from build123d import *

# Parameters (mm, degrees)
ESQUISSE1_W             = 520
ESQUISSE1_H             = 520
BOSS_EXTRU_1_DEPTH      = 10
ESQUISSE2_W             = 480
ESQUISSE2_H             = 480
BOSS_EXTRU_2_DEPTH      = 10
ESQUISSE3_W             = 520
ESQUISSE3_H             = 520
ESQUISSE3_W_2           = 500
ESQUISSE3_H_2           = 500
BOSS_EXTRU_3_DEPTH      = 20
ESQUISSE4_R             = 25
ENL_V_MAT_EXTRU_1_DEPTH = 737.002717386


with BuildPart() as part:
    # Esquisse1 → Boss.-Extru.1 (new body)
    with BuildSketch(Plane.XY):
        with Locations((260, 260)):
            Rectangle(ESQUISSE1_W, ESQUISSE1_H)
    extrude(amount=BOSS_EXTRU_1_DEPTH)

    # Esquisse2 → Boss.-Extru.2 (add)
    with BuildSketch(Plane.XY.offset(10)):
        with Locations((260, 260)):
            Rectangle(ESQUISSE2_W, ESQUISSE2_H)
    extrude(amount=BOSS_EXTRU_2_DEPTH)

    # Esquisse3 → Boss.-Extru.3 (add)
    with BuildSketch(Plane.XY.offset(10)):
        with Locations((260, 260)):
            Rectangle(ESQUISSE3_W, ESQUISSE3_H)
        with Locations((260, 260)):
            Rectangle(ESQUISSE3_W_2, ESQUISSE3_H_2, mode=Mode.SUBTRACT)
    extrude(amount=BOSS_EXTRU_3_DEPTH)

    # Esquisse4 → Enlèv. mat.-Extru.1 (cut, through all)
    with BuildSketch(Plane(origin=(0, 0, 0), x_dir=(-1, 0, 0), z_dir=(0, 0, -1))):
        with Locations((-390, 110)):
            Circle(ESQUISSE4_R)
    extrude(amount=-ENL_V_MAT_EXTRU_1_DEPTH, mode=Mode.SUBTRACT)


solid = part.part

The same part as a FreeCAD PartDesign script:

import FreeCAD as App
import Part
import Sketcher
Q = App.Units.Quantity


def add_polygon(sketch, points):
    """Adds a closed chain of lines whose ends are joined by coincident constraints."""
    first, n = sketch.GeometryCount, len(points)
    for a, b in zip(points, points[1:] + points[:1]):
        sketch.addGeometry(Part.LineSegment(App.Vector(*a, 0), App.Vector(*b, 0)), False)
    for i in range(n):
        sketch.addConstraint(Sketcher.Constraint("Coincident", first + i, 2, first + (i + 1) % n, 1))

doc = App.newDocument("Part")
body = doc.addObject("PartDesign::Body", "Body")

# Sketch on XY plane
sketch1 = doc.addObject("Sketcher::SketchObject", "Sketch")
body.addObject(sketch1)
sketch1.AttachmentSupport = (doc.XY_Plane, [""])
sketch1.MapMode = "FlatFace"
add_polygon(sketch1, [(0, 520), (0, 0), (520, 0), (520, 520)])  # lines 0-3
sketch1.addConstraint([
    Sketcher.Constraint("Vertical", 0),
    Sketcher.Constraint("Horizontal", 1),
    Sketcher.Constraint("Vertical", 2),
    Sketcher.Constraint("Horizontal", 3),
    Sketcher.Constraint("Coincident", 0, 2, -1, 1),
    Sketcher.Constraint("Equal", 3, 0),
    Sketcher.Constraint("DistanceX", 1, 1, 1, 2, Q("520 mm")),
])
pad1 = doc.addObject("PartDesign::Pad", "Pad")
body.addObject(pad1)
pad1.Profile = sketch1
pad1.Length = 10

# Sketch on XY plane
sketch2 = doc.addObject("Sketcher::SketchObject", "Sketch001")
body.addObject(sketch2)
sketch2.AttachmentSupport = (doc.XY_Plane, [""])
sketch2.MapMode = "FlatFace"
sketch2.AttachmentOffset = App.Placement(App.Vector(0, 0, 10), App.Rotation())
add_polygon(sketch2, [(20, 500), (20, 20), (500, 20), (500, 500)])  # lines 0-3
sketch2.addConstraint([
    Sketcher.Constraint("Vertical", 0),
    Sketcher.Constraint("Horizontal", 1),
    Sketcher.Constraint("Vertical", 2),
    Sketcher.Constraint("Horizontal", 3),
    Sketcher.Constraint("Equal", 3, 0),
    Sketcher.Constraint("DistanceX", 1, 1, 1, 2, Q("480 mm")),
    Sketcher.Constraint("DistanceX", -1, 1, 0, 2, Q("20 mm")),
    Sketcher.Constraint("DistanceY", -1, 1, 0, 2, Q("20 mm")),
])
pad2 = doc.addObject("PartDesign::Pad", "Pad001")
body.addObject(pad2)
pad2.Profile = sketch2
pad2.Length = 10

# Sketch on XY plane
sketch3 = doc.addObject("Sketcher::SketchObject", "Sketch002")
body.addObject(sketch3)
sketch3.AttachmentSupport = (doc.XY_Plane, [""])
sketch3.MapMode = "FlatFace"
sketch3.AttachmentOffset = App.Placement(App.Vector(0, 0, 10), App.Rotation())
add_polygon(sketch3, [(0, 520), (0, 0), (520, 0), (520, 520)])  # lines 0-3
add_polygon(sketch3, [(510, 10), (10, 10), (10, 510), (510, 510)])  # lines 4-7
sketch3.addConstraint([
    Sketcher.Constraint("Vertical", 0),
    Sketcher.Constraint("Horizontal", 1),
    Sketcher.Constraint("Vertical", 2),
    Sketcher.Constraint("Horizontal", 3),
    Sketcher.Constraint("Horizontal", 4),
    Sketcher.Constraint("Vertical", 5),
    Sketcher.Constraint("Horizontal", 6),
    Sketcher.Constraint("Vertical", 7),
    Sketcher.Constraint("Coincident", 0, 2, -1, 1),
    Sketcher.Constraint("Equal", 3, 0),
    Sketcher.Constraint("Equal", 6, 5),
    Sketcher.Constraint("DistanceX", 1, 1, 1, 2, Q("520 mm")),
    Sketcher.Constraint("DistanceX", 4, 2, 4, 1, Q("500 mm")),
    Sketcher.Constraint("DistanceX", -1, 1, 4, 2, Q("10 mm")),
    Sketcher.Constraint("DistanceY", -1, 1, 4, 2, Q("10 mm")),
])
pad3 = doc.addObject("PartDesign::Pad", "Pad002")
body.addObject(pad3)
pad3.Profile = sketch3
pad3.Length = 20

# Sketch on XY plane
sketch4 = doc.addObject("Sketcher::SketchObject", "Sketch003")
body.addObject(sketch4)
sketch4.AttachmentSupport = (doc.XY_Plane, [""])
sketch4.MapMode = "FlatFace"
sketch4.addGeometry(Part.Circle(App.Vector(390, 110, 0), App.Vector(0, 0, 1), 25), False)
sketch4.addConstraint([
    Sketcher.Constraint("Diameter", 0, Q("50 mm")),
    Sketcher.Constraint("DistanceX", -1, 1, 0, 3, Q("390 mm")),
    Sketcher.Constraint("DistanceY", -1, 1, 0, 3, Q("110 mm")),
])
pocket1 = doc.addObject("PartDesign::Pocket", "Pocket")
body.addObject(pocket1)
pocket1.Profile = sketch4
pocket1.Type = "ThroughAll"
pocket1.Reversed = True

doc.recompute()
